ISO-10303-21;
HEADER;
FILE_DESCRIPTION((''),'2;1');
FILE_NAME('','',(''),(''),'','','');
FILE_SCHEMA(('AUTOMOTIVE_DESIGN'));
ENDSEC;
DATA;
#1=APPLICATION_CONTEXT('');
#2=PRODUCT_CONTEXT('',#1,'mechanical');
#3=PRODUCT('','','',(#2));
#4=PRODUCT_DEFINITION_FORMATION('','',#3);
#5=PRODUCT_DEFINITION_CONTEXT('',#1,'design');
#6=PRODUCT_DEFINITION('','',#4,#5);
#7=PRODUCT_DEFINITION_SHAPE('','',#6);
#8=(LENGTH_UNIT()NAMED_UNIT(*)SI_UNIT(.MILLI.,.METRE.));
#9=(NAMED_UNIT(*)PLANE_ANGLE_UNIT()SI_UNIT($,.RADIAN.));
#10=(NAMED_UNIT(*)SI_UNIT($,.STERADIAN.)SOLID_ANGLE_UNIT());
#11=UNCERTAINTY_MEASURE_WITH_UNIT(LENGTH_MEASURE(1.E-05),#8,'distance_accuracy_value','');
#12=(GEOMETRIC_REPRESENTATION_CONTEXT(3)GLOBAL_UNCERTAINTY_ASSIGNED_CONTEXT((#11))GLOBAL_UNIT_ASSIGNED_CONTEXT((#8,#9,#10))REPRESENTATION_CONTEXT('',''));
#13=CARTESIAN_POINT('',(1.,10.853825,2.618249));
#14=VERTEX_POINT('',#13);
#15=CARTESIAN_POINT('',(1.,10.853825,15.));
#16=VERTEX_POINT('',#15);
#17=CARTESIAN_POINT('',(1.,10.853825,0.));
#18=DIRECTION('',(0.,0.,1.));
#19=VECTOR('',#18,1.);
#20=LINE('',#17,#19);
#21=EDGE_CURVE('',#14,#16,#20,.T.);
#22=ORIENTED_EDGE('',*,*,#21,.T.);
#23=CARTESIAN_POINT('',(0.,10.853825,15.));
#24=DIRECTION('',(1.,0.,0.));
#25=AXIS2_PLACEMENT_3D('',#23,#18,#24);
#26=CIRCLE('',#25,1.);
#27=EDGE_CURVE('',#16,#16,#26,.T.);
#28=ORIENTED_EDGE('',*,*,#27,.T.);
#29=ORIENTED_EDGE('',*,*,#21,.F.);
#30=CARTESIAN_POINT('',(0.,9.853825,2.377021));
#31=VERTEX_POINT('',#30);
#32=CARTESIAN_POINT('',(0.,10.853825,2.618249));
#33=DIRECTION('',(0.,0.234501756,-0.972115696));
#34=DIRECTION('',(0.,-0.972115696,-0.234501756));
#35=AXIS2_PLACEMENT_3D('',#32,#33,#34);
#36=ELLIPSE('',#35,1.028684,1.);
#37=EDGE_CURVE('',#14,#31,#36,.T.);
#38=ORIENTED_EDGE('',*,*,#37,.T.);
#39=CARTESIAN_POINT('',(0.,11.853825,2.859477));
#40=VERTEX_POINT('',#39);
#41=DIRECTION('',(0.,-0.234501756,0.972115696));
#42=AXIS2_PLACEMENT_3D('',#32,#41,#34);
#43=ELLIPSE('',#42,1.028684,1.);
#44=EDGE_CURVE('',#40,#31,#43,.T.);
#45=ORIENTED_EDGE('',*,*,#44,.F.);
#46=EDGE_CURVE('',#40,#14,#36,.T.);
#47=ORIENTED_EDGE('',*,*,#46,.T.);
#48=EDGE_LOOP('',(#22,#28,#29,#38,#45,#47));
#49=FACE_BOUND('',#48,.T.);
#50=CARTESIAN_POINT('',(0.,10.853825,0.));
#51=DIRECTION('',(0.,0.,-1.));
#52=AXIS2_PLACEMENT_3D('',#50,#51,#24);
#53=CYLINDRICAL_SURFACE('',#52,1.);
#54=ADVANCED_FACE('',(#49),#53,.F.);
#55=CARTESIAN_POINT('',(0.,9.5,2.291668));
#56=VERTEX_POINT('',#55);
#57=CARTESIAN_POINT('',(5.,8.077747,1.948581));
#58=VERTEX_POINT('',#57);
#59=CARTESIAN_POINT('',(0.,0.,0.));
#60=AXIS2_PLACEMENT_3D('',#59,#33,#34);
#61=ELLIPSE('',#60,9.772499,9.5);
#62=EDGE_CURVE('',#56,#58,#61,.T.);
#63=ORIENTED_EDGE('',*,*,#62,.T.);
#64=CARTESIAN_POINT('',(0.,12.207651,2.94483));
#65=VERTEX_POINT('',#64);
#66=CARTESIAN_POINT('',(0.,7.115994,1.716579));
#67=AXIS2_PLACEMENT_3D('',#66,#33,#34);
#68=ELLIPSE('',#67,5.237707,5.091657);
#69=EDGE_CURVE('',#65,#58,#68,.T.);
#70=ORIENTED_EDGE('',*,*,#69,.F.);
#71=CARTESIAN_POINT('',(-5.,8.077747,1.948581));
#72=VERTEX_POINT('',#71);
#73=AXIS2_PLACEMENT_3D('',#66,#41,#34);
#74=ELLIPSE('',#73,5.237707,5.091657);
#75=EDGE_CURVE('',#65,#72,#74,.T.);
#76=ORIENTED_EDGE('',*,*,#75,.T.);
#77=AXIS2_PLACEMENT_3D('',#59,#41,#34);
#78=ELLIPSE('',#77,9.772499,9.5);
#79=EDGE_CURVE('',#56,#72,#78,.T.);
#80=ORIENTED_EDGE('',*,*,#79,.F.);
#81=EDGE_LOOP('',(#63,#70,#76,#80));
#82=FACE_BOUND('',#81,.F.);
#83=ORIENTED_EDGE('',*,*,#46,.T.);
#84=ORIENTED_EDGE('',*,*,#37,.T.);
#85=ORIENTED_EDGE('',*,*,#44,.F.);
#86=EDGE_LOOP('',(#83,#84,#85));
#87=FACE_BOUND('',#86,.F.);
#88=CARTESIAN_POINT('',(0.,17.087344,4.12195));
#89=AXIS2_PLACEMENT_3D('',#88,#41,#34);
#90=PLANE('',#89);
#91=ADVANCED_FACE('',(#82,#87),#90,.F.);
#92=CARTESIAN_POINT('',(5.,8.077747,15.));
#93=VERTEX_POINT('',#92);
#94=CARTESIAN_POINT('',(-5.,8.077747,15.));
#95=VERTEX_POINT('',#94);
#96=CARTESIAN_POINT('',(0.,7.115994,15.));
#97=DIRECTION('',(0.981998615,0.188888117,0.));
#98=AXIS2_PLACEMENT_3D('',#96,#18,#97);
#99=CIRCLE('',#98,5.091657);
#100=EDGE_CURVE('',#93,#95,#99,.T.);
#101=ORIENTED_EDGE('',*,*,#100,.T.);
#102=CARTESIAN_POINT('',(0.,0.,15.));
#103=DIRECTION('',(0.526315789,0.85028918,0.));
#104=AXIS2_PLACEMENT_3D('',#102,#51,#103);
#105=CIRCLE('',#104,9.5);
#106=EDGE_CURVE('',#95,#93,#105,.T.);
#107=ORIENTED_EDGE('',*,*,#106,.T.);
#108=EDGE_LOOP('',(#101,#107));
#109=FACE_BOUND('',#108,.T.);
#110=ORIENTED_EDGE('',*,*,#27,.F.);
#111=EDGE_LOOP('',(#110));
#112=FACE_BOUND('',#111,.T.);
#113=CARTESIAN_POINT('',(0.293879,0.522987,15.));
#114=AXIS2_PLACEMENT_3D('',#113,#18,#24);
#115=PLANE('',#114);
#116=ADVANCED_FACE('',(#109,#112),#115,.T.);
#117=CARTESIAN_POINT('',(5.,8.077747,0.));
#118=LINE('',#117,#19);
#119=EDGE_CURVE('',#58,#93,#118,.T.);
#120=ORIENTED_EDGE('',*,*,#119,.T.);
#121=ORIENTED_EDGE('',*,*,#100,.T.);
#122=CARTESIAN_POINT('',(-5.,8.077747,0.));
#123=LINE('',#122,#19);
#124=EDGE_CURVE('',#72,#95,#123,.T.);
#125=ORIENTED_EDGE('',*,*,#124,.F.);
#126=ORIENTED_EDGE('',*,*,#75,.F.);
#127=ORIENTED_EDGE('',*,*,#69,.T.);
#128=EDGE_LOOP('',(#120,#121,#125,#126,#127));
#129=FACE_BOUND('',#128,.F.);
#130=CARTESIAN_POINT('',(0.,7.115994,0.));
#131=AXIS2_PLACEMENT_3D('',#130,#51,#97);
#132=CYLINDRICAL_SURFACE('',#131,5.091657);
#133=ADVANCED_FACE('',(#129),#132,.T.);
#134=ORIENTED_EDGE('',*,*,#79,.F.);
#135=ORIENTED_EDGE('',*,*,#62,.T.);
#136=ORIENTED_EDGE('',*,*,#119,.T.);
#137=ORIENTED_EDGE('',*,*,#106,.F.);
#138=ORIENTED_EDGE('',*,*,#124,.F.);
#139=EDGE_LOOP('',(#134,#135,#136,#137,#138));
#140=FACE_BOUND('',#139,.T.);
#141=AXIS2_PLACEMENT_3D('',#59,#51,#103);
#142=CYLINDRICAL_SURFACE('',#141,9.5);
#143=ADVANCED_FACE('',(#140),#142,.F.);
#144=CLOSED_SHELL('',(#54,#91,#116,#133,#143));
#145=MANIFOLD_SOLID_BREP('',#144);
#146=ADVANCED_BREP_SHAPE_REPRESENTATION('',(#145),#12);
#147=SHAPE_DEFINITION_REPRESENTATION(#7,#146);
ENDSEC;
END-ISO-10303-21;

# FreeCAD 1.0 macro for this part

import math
import FreeCAD as App
import Part
import Sketcher

V = App.Vector
Q = App.Units.Quantity

doc = App.newDocument("Part")
body = doc.addObject("PartDesign::Body", "Body")

sketch1 = body.newObject("Sketcher::SketchObject", "Sketch")
sketch1.AttachmentSupport = (doc.getObject("XY_Plane"), [""])
sketch1.MapMode = "FlatFace"
sketch1.addGeometry([
    Part.ArcOfCircle(Part.Circle(V(0, 0, 0), V(0, 0, 1), 9.5), math.radians(121.756864), math.radians(360)),
    Part.ArcOfCircle(Part.Circle(V(0, 0, 0), V(0, 0, 1), 9.5), math.radians(0), math.radians(58.243136)),
    Part.ArcOfCircle(Part.Circle(V(0, 7.115994, 0), V(0, 0, 1), 5.091657), math.radians(10.887903), math.radians(169.112097)),
    Part.Circle(V(0, 10.853825, 0), V(0, 0, 1), 1),
], False)
sketch1.addConstraint([
    Sketcher.Constraint("Tangent", 0, 2, 1, 1),
    Sketcher.Constraint("Coincident", 1, 2, 2, 1),
    Sketcher.Constraint("Coincident", 2, 2, 0, 1),
    Sketcher.Constraint("Coincident", 0, 3, -1, 1),
    Sketcher.Constraint("Equal", 0, 1),
    Sketcher.Constraint("PointOnObject", 2, 3, -2),
    Sketcher.Constraint("PointOnObject", 3, 3, -2),
    Sketcher.Constraint("PointOnObject", 0, 2, -1),
    Sketcher.Constraint("Diameter", 3, Q("2 mm")),
    Sketcher.Constraint("Radius", 0, Q("9.5 mm")),
    Sketcher.Constraint("DistanceX", -1, 1, 1, 2, Q("5 mm")),
    Sketcher.Constraint("Radius", 2, Q("5.091657 mm")),
    Sketcher.Constraint("DistanceY", 2, 3, 3, 3, Q("3.737832 mm")),
])
pad1 = body.newObject("PartDesign::Pad", "Pad")
pad1.Profile = sketch1
pad1.Length = 15

sketch2 = body.newObject("Sketcher::SketchObject", "Sketch001")
sketch2.AttachmentSupport = (doc.getObject("XY_Plane"), [""])
sketch2.MapMode = "FlatFace"
sketch2.addGeometry([
    Part.ArcOfCircle(Part.Circle(V(0, 0, 0), V(0, 0, 1), 9.5), math.radians(58.243136), math.radians(121.756864)),
    Part.LineSegment(V(-5, 8.077747, 0), V(-5, 20, 0)),
    Part.LineSegment(V(-5, 20, 0), V(-15, 20, 0)),
    Part.LineSegment(V(-15, 20, 0), V(-15, -15, 0)),
    Part.LineSegment(V(-15, -15, 0), V(15, -15, 0)),
    Part.LineSegment(V(15, -15, 0), V(15, 20, 0)),
    Part.LineSegment(V(15, 20, 0), V(5, 20, 0)),
    Part.LineSegment(V(5, 20, 0), V(5, 8.077747, 0)),
], False)
sketch2.addConstraint([
    Sketcher.Constraint("Coincident", 0, 2, 1, 1),
    Sketcher.Constraint("Coincident", 1, 2, 2, 1),
    Sketcher.Constraint("Coincident", 2, 2, 3, 1),
    Sketcher.Constraint("Coincident", 3, 2, 4, 1),
    Sketcher.Constraint("Coincident", 4, 2, 5, 1),
    Sketcher.Constraint("Coincident", 5, 2, 6, 1),
    Sketcher.Constraint("Coincident", 6, 2, 7, 1),
    Sketcher.Constraint("Coincident", 7, 2, 0, 1),
    Sketcher.Constraint("Vertical", 1),
    Sketcher.Constraint("Horizontal", 2),
    Sketcher.Constraint("Vertical", 3),
    Sketcher.Constraint("Horizontal", 4),
    Sketcher.Constraint("Vertical", 5),
    Sketcher.Constraint("Horizontal", 6),
    Sketcher.Constraint("Vertical", 7),
    Sketcher.Constraint("Coincident", 0, 3, -1, 1),
    Sketcher.Constraint("Symmetric", 2, 2, 5, 2, -2),
    Sketcher.Constraint("Horizontal", 0, 2, 7, 2),
    Sketcher.Constraint("Radius", 0, Q("9.5 mm")),
    Sketcher.Constraint("DistanceX", 2, 2, 2, 1, Q("10 mm")),
    Sketcher.Constraint("DistanceX", 4, 1, 4, 2, Q("30 mm")),
    Sketcher.Constraint("DistanceY", 3, 2, 3, 1, Q("35 mm")),
    Sketcher.Constraint("DistanceY", -1, 1, 1, 2, Q("20 mm")),
])
pocket1 = body.newObject("PartDesign::Pocket", "Pocket")
pocket1.Profile = sketch2
pocket1.Type = "ThroughAll"
pocket1.Reversed = True

sketch3 = body.newObject("Sketcher::SketchObject", "Sketch002")
sketch3.AttachmentSupport = (doc.getObject("YZ_Plane"), [""])
sketch3.MapMode = "FlatFace"
sketch3.addGeometry([
    Part.LineSegment(V(17.087344, 4.12195, 0), V(0, 0, 0)),
    Part.LineSegment(V(0, 0, 0), V(17.087344, 0, 0)),
    Part.LineSegment(V(17.087344, 0, 0), V(17.087344, 4.12195, 0)),
], False)
sketch3.addConstraint([
    Sketcher.Constraint("Coincident", 0, 2, 1, 1),
    Sketcher.Constraint("Coincident", 1, 2, 2, 1),
    Sketcher.Constraint("Coincident", 2, 2, 0, 1),
    Sketcher.Constraint("Horizontal", 1),
    Sketcher.Constraint("Vertical", 2),
    Sketcher.Constraint("Coincident", 0, 2, -1, 1),
    Sketcher.Constraint("DistanceY", 2, 1, 2, 2, Q("4.12195 mm")),
    Sketcher.Constraint("Distance", 0, Q("17.57748 mm")),
])
pocket2 = body.newObject("PartDesign::Pocket", "Pocket001")
pocket2.Profile = sketch3
pocket2.Type = "ThroughAll"
pocket2.Midplane = True

doc.recompute()
